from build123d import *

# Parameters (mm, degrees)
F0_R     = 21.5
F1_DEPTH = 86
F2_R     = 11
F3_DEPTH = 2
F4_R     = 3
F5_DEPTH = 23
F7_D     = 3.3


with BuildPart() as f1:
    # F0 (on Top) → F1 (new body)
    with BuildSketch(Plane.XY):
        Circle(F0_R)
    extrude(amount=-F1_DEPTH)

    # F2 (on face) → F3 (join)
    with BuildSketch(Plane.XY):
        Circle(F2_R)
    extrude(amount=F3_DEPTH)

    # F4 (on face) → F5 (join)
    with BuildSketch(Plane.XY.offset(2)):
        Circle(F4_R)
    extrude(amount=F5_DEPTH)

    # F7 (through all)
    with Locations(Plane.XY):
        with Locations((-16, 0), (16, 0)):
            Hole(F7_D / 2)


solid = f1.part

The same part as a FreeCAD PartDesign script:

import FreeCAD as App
import Part
import Sketcher

V = App.Vector

doc = App.newDocument("Part")
body = doc.addObject("PartDesign::Body", "Body")

# Sketch on XY plane
sketch1 = body.newObject("Sketcher::SketchObject", "Sketch")
sketch1.AttachmentSupport = (doc.getObject("XY_Plane"), [""])
sketch1.MapMode = "FlatFace"
sketch1.addGeometry(Part.Circle(V(0, 0, 0), V(0, 0, 1), 22), False)
sketch1.addConstraint(Sketcher.Constraint("Coincident", 0, 3, -1, 1))
sketch1.addConstraint(Sketcher.Constraint("Diameter", 0, 43.0))
pad1 = body.newObject("PartDesign::Pad", "Pad")
pad1.Profile = sketch1
pad1.Length = 86
pad1.Reversed = True

# Sketch on XY plane
sketch2 = body.newObject("Sketcher::SketchObject", "Sketch001")
sketch2.AttachmentSupport = (doc.getObject("XY_Plane"), [""])
sketch2.MapMode = "FlatFace"
sketch2.addGeometry(Part.Circle(V(0, 0, 0), V(0, 0, 1), 11), False)
sketch2.addConstraint(Sketcher.Constraint("Coincident", 0, 3, -1, 1))
sketch2.addConstraint(Sketcher.Constraint("Diameter", 0, 22.0))
pad2 = body.newObject("PartDesign::Pad", "Pad001")
pad2.Profile = sketch2
pad2.Length = 2

# Sketch on XY plane
sketch3 = body.newObject("Sketcher::SketchObject", "Sketch002")
sketch3.AttachmentSupport = (doc.getObject("XY_Plane"), [""])
sketch3.MapMode = "FlatFace"
sketch3.AttachmentOffset = App.Placement(V(0, 0, 2), App.Rotation())
sketch3.addGeometry(Part.Circle(V(0, 0, 0), V(0, 0, 1), 3), False)
sketch3.addConstraint(Sketcher.Constraint("Coincident", 0, 3, -1, 1))
sketch3.addConstraint(Sketcher.Constraint("Diameter", 0, 6.0))
pad3 = body.newObject("PartDesign::Pad", "Pad002")
pad3.Profile = sketch3
pad3.Length = 23

# Sketch on XY plane
sketch4 = body.newObject("Sketcher::SketchObject", "Sketch003")
sketch4.AttachmentSupport = (doc.getObject("XY_Plane"), [""])
sketch4.MapMode = "FlatFace"
sketch4.addGeometry(Part.Circle(V(-16, 0, 0), V(0, 0, 1), 1.6), False)
sketch4.addGeometry(Part.Circle(V(16, 0, 0), V(0, 0, 1), 1.6), False)
sketch4.addConstraint(Sketcher.Constraint("Equal", 0, 1))
sketch4.addConstraint(Sketcher.Constraint("Symmetric", 0, 3, 1, 3, -1, 1))
sketch4.addConstraint(Sketcher.Constraint("PointOnObject", 0, 3, -1))
sketch4.addConstraint(Sketcher.Constraint("Diameter", 0, 3.3))
sketch4.addConstraint(Sketcher.Constraint("DistanceX", 0, 3, -1, 1, 16.0))
doc.recompute()
hole = body.newObject("PartDesign::Hole", "Hole")
hole.Profile = sketch4
hole.ThreadType = "None"
hole.Diameter = 3.3
hole.DepthType = "ThroughAll"

doc.recompute()
